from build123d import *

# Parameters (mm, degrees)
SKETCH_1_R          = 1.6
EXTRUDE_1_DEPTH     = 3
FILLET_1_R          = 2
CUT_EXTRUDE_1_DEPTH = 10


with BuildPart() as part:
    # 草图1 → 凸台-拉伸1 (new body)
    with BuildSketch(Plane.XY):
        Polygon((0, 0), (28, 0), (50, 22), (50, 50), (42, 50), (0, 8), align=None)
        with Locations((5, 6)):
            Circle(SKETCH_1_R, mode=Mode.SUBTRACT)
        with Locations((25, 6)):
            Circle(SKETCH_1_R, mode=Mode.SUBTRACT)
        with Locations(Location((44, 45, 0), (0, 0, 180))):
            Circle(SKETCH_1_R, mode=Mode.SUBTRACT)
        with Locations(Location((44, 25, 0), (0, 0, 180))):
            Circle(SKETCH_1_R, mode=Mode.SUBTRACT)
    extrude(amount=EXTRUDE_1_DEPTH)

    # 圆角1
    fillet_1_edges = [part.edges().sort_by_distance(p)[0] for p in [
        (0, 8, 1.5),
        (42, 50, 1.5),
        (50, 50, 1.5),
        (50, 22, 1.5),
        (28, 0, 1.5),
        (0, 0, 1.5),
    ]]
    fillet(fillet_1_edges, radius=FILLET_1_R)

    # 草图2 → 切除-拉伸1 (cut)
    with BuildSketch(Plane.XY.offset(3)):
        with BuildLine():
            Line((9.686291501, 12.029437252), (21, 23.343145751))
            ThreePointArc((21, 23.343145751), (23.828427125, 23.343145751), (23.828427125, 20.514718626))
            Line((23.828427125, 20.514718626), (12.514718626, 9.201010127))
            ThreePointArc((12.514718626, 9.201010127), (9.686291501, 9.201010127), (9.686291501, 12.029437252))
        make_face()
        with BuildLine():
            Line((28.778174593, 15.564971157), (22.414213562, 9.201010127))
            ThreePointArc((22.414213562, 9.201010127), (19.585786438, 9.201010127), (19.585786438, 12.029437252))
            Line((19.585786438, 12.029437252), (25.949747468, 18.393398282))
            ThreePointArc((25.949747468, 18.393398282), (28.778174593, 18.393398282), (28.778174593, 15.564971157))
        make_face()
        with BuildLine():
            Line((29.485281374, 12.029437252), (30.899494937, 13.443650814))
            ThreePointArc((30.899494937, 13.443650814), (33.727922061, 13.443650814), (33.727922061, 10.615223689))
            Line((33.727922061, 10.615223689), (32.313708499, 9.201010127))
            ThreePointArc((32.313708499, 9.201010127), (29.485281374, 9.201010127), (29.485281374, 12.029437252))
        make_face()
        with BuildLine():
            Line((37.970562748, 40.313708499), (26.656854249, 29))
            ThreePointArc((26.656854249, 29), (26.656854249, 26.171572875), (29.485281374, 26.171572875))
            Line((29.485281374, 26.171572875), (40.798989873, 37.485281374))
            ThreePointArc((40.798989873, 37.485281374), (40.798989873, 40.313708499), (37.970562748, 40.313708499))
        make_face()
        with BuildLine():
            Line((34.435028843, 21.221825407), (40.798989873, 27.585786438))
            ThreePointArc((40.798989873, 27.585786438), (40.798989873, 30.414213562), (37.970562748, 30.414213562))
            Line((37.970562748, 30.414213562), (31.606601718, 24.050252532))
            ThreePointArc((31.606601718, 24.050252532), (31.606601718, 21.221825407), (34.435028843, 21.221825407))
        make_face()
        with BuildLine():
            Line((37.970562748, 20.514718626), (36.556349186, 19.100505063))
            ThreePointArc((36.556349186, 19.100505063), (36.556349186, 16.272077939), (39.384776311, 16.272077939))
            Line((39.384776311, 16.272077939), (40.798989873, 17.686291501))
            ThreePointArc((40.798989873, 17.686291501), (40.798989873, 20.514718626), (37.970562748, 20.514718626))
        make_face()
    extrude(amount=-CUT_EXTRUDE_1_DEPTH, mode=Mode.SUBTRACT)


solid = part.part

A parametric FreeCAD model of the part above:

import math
import FreeCAD as App
import Part
import Sketcher

V = App.Vector


def edges_at(feature, points):
    """Names of the edges that pass closest to the given points."""
    edges = feature.Shape.Edges
    near = lambda p: min(range(len(edges)), key=lambda i: edges[i].distToShape(Part.Vertex(*p))[0])
    return sorted({f"Edge{near(p) + 1}" for p in points})

doc = App.newDocument("Part")
params = doc.addObject("Spreadsheet::Sheet", "Params")
for row, (alias, value) in enumerate([
    ("sketch1_diameter", "3.2 mm"),
    ("sketch1_width", "28 mm"),
    ("sketch1_width2", "8 mm"),
    ("pad1_length", "3 mm"),
    ("fillet_radius", "2 mm"),
    ("sketch2_radius", "2 mm"),
    ("sketch2_length", "16 mm"),
    ("sketch2_length2", "9 mm"),
    ("pocket1_length", "10 mm"),
], start=1):
    params.set(f"A{row}", alias)
    params.set(f"B{row}", "=" + value)
    params.setAlias(f"B{row}", alias)

body = doc.addObject("PartDesign::Body", "Body")

# Sketch on XY plane
sketch1 = body.newObject("Sketcher::SketchObject", "Sketch")
sketch1.AttachmentSupport = (doc.getObject("XY_Plane"), [""])
sketch1.MapMode = "FlatFace"
sketch1.addGeometry([
    Part.LineSegment(V(0, 0, 0), V(28, 0, 0)),  # 0
    Part.LineSegment(V(28, 0, 0), V(50, 22, 0)),  # 1
    Part.LineSegment(V(50, 22, 0), V(50, 50, 0)),  # 2
    Part.LineSegment(V(50, 50, 0), V(42, 50, 0)),  # 3
    Part.LineSegment(V(42, 50, 0), V(0, 8, 0)),  # 4
    Part.LineSegment(V(0, 8, 0), V(0, 0, 0)),  # 5
    Part.Circle(V(5, 6, 0), V(0, 0, 1), 1.6),  # 6
    Part.Circle(V(25, 6, 0), V(0, 0, 1), 1.6),  # 7
    Part.Circle(V(44, 25, 0), V(0, 0, 1), 1.6),  # 8
    Part.Circle(V(44, 45, 0), V(0, 0, 1), 1.6),  # 9
], False)
sketch1.addConstraint([
    Sketcher.Constraint("Coincident", 0, 2, 1, 1),
    Sketcher.Constraint("Coincident", 1, 2, 2, 1),
    Sketcher.Constraint("Coincident", 2, 2, 3, 1),
    Sketcher.Constraint("Coincident", 3, 2, 4, 1),
    Sketcher.Constraint("Coincident", 4, 2, 5, 1),
    Sketcher.Constraint("Coincident", 5, 2, 0, 1),
    Sketcher.Constraint("Horizontal", 0),
    Sketcher.Constraint("Vertical", 2),
    Sketcher.Constraint("Horizontal", 3),
    Sketcher.Constraint("Vertical", 5),
    Sketcher.Constraint("Coincident", 5, 2, -1, 1),
    Sketcher.Constraint("Equal", 6, 7),
    Sketcher.Constraint("Equal", 7, 8),
    Sketcher.Constraint("Equal", 8, 9),
    Sketcher.Constraint("Parallel", 1, 4),
    Sketcher.Constraint("Horizontal", 6, 3, 7, 3),
    Sketcher.Constraint("Vertical", 8, 3, 9, 3),
    Sketcher.Constraint("Equal", 0, 2),
    Sketcher.Constraint("Equal", 3, 5),
    Sketcher.Constraint("Diameter", 6, 3.2),
    Sketcher.Constraint("DistanceX", 0, 1, 0, 2, 28.0),
    Sketcher.Constraint("DistanceX", 3, 2, 3, 1, 8.0),
    Sketcher.Constraint("DistanceX", -1, 1, 6, 3, 5.0),
    Sketcher.Constraint("DistanceY", -1, 1, 6, 3, 6.0),
    Sketcher.Constraint("DistanceX", -1, 1, 7, 3, 25.0),
    Sketcher.Constraint("DistanceX", -1, 1, 8, 3, 44.0),
    Sketcher.Constraint("DistanceY", -1, 1, 8, 3, 25.0),
    Sketcher.Constraint("DistanceY", -1, 1, 9, 3, 45.0),
    Sketcher.Constraint("DistanceX", -1, 1, 1, 2, 50.0),
])
sketch1.setExpression("Constraints[19]", "Params.sketch1_diameter")
sketch1.setExpression("Constraints[20]", "Params.sketch1_width")
sketch1.setExpression("Constraints[21]", "Params.sketch1_width2")
pad1 = body.newObject("PartDesign::Pad", "Pad")
pad1.Profile = sketch1
pad1.setExpression("Length", "Params.pad1_length")
doc.recompute()

fillet = body.newObject("PartDesign::Fillet", "Fillet")
fillet.Base = (pad1, edges_at(pad1, [
    (0, 8, 1.5),
    (42, 50, 1.5),
    (50, 50, 1.5),
    (50, 22, 1.5),
    (28, 0, 1.5),
    (0, 0, 1.5),
]))
fillet.setExpression("Radius", "Params.fillet_radius")

# Sketch on XY plane
sketch2 = body.newObject("Sketcher::SketchObject", "Sketch001")
sketch2.AttachmentSupport = (doc.getObject("XY_Plane"), [""])
sketch2.MapMode = "FlatFace"
sketch2.AttachmentOffset = App.Placement(V(0, 0, 3), App.Rotation())
sketch2.addGeometry([
    Part.LineSegment(V(21, 23.3, 0), V(9.7, 12, 0)),  # 0
    Part.ArcOfCircle(Part.Circle(V(11.1, 10.6, 0), V(0, 0, 1), 2), math.radians(135), math.radians(315)),  # 1
    Part.LineSegment(V(12.5, 9.2, 0), V(23.8, 20.5, 0)),  # 2
    Part.ArcOfCircle(Part.Circle(V(22.4, 21.9, 0), V(0, 0, 1), 2), math.radians(-45), math.radians(135)),  # 3
    Part.LineSegment(V(22.4, 9.2, 0), V(28.8, 15.6, 0)),  # 4
    Part.ArcOfCircle(Part.Circle(V(27.4, 17, 0), V(0, 0, 1), 2), math.radians(-45), math.radians(135)),  # 5
    Part.LineSegment(V(25.9, 18.4, 0), V(19.6, 12, 0)),  # 6
    Part.ArcOfCircle(Part.Circle(V(21, 10.6, 0), V(0, 0, 1), 2), math.radians(135), math.radians(315)),  # 7
    Part.LineSegment(V(30.9, 13.4, 0), V(29.5, 12, 0)),  # 8
    Part.ArcOfCircle(Part.Circle(V(30.9, 10.6, 0), V(0, 0, 1), 2), math.radians(135), math.radians(315)),  # 9
    Part.LineSegment(V(32.3, 9.2, 0), V(33.7, 10.6, 0)),  # 10
    Part.ArcOfCircle(Part.Circle(V(32.3, 12, 0), V(0, 0, 1), 2), math.radians(-45), math.radians(135)),  # 11
    Part.LineSegment(V(38, 40.3, 0), V(26.7, 29, 0)),  # 12
    Part.ArcOfCircle(Part.Circle(V(28.1, 27.6, 0), V(0, 0, 1), 2), math.radians(135), math.radians(315)),  # 13
    Part.LineSegment(V(29.5, 26.2, 0), V(40.8, 37.5, 0)),  # 14
    Part.ArcOfCircle(Part.Circle(V(39.4, 38.9, 0), V(0, 0, 1), 2), math.radians(-45), math.radians(135)),  # 15
    Part.LineSegment(V(34.4, 21.2, 0), V(40.8, 27.6, 0)),  # 16
    Part.ArcOfCircle(Part.Circle(V(39.4, 29, 0), V(0, 0, 1), 2), math.radians(-45), math.radians(135)),  # 17
    Part.LineSegment(V(38, 30.4, 0), V(31.6, 24.1, 0)),  # 18
    Part.ArcOfCircle(Part.Circle(V(33, 22.6, 0), V(0, 0, 1), 2), math.radians(135), math.radians(315)),  # 19
    Part.LineSegment(V(38, 20.5, 0), V(36.6, 19.1, 0)),  # 20
    Part.ArcOfCircle(Part.Circle(V(38, 17.7, 0), V(0, 0, 1), 2), math.radians(135), math.radians(315)),  # 21
    Part.LineSegment(V(39.4, 16.3, 0), V(40.8, 17.7, 0)),  # 22
    Part.ArcOfCircle(Part.Circle(V(39.4, 19.1, 0), V(0, 0, 1), 2), math.radians(-45), math.radians(135)),  # 23
], False)
sketch2.addConstraint([
    Sketcher.Constraint("Tangent", 0, 2, 1, 1),
    Sketcher.Constraint("Tangent", 1, 2, 2, 1),
    Sketcher.Constraint("Tangent", 2, 2, 3, 1),
    Sketcher.Constraint("Tangent", 3, 2, 0, 1),
    Sketcher.Constraint("Tangent", 4, 2, 5, 1),
    Sketcher.Constraint("Tangent", 5, 2, 6, 1),
    Sketcher.Constraint("Tangent", 6, 2, 7, 1),
    Sketcher.Constraint("Tangent", 7, 2, 4, 1),
    Sketcher.Constraint("Tangent", 8, 2, 9, 1),
    Sketcher.Constraint("Tangent", 9, 2, 10, 1),
    Sketcher.Constraint("Tangent", 10, 2, 11, 1),
    Sketcher.Constraint("Tangent", 11, 2, 8, 1),
    Sketcher.Constraint("Tangent", 12, 2, 13, 1),
    Sketcher.Constraint("Tangent", 13, 2, 14, 1),
    Sketcher.Constraint("Tangent", 14, 2, 15, 1),
    Sketcher.Constraint("Tangent", 15, 2, 12, 1),
    Sketcher.Constraint("Tangent", 16, 2, 17, 1),
    Sketcher.Constraint("Tangent", 17, 2, 18, 1),
    Sketcher.Constraint("Tangent", 18, 2, 19, 1),
    Sketcher.Constraint("Tangent", 19, 2, 16, 1),
    Sketcher.Constraint("Tangent", 20, 2, 21, 1),
    Sketcher.Constraint("Tangent", 21, 2, 22, 1),
    Sketcher.Constraint("Tangent", 22, 2, 23, 1),
    Sketcher.Constraint("Tangent", 23, 2, 20, 1),
    Sketcher.Constraint("Equal", 1, 3),
    Sketcher.Constraint("Equal", 3, 5),
    Sketcher.Constraint("Equal", 5, 7),
    Sketcher.Constraint("Equal", 7, 9),
    Sketcher.Constraint("Equal", 9, 11),
    Sketcher.Constraint("Equal", 11, 13),
    Sketcher.Constraint("Equal", 13, 15),
    Sketcher.Constraint("Equal", 15, 17),
    Sketcher.Constraint("Equal", 17, 19),
    Sketcher.Constraint("Equal", 19, 21),
    Sketcher.Constraint("Equal", 21, 23),
    Sketcher.Constraint("Parallel", 2, 4),
    Sketcher.Constraint("Parallel", 6, 8),
    Sketcher.Constraint("Parallel", 10, 12),
    Sketcher.Constraint("Parallel", 14, 16),
    Sketcher.Constraint("Parallel", 18, 20),
    Sketcher.Constraint("Horizontal", 1, 3, 7, 3),
    Sketcher.Constraint("Horizontal", 7, 3, 9, 3),
    Sketcher.Constraint("Horizontal", 11, 3, 0, 2),
    Sketcher.Constraint("Horizontal", 17, 3, 12, 2),
    Sketcher.Constraint("Horizontal", 23, 3, 20, 2),
    Sketcher.Constraint("Horizontal", 2, 2, 23, 2),
    Sketcher.Constraint("Vertical", 15, 3, 17, 3),
    Sketcher.Constraint("Vertical", 17, 3, 23, 3),
    Sketcher.Constraint("Vertical", 7, 3, 3, 2),
    Sketcher.Constraint("Vertical", 11, 3, 9, 2),
    Sketcher.Constraint("Vertical", 8, 2, 13, 2),
    Sketcher.Constraint("Equal", 2, 12),
    Sketcher.Constraint("Equal", 6, 16),
    Sketcher.Constraint("Radius", 1, 2.0),
    Sketcher.Constraint("Distance", 0, 16.0),
    Sketcher.Constraint("Distance", 4, 9.0),
    Sketcher.Constraint("DistanceX", -1, 1, 7, 3, 21.0),
    Sketcher.Constraint("DistanceY", -1, 1, 17, 3, 29.0),
    Sketcher.Constraint("DistanceY", -1, 1, 5, 2, 18.393398),
    Sketcher.Constraint("DistanceX", -1, 1, 18, 2, 31.606602),
])
sketch2.setExpression("Constraints[53]", "Params.sketch2_radius")
sketch2.setExpression("Constraints[54]", "Params.sketch2_length")
sketch2.setExpression("Constraints[55]", "Params.sketch2_length2")
pocket1 = body.newObject("PartDesign::Pocket", "Pocket")
pocket1.Profile = sketch2
pocket1.setExpression("Length", "Params.pocket1_length")

doc.recompute()
